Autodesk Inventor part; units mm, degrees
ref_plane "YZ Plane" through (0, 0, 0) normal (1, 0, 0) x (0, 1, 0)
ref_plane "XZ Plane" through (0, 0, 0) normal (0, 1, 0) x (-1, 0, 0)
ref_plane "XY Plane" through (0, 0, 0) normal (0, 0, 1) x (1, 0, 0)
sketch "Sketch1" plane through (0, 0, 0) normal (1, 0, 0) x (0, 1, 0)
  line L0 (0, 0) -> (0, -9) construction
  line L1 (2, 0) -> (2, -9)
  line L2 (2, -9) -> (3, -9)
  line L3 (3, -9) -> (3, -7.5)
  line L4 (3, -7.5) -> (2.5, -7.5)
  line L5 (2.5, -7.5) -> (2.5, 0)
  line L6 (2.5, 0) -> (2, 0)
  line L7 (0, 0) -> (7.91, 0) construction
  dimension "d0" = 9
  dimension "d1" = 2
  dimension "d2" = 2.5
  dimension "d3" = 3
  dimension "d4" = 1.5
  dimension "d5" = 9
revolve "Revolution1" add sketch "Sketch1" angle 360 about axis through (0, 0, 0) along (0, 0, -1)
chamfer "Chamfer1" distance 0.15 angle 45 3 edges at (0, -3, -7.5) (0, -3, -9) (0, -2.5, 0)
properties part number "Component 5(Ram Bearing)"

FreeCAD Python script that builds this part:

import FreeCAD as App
import Part
import Sketcher
Q = App.Units.Quantity


def edges_at(feature, points):
    """Names of the edges that pass closest to the given points."""
    edges = feature.Shape.Edges
    near = lambda p: min(range(len(edges)), key=lambda i: edges[i].distToShape(Part.Vertex(*p))[0])
    return sorted({f"Edge{near(p) + 1}" for p in points})


def add_polygon(sketch, points):
    """Adds a closed chain of lines whose ends are joined by coincident constraints."""
    first, n = sketch.GeometryCount, len(points)
    for a, b in zip(points, points[1:] + points[:1]):
        sketch.addGeometry(Part.LineSegment(App.Vector(*a, 0), App.Vector(*b, 0)), False)
    for i in range(n):
        sketch.addConstraint(Sketcher.Constraint("Coincident", first + i, 2, first + (i + 1) % n, 1))

doc = App.newDocument("Part")
body = doc.addObject("PartDesign::Body", "Body")

sketch1 = body.newObject("Sketcher::SketchObject", "Sketch")
sketch1.AttachmentSupport = (doc.getObject("YZ_Plane"), [""])
sketch1.MapMode = "FlatFace"
add_polygon(sketch1, [(2.5, 0), (2, 0), (2, -9), (3, -9), (3, -7.5), (2.5, -7.5)])
sketch1.addConstraint([
    Sketcher.Constraint("Horizontal", 0),
    Sketcher.Constraint("Vertical", 1),
    Sketcher.Constraint("Horizontal", 2),
    Sketcher.Constraint("Vertical", 3),
    Sketcher.Constraint("Horizontal", 4),
    Sketcher.Constraint("Vertical", 5),
    Sketcher.Constraint("PointOnObject", 0, 2, -1),
    Sketcher.Constraint("Equal", 0, 4),
    Sketcher.Constraint("DistanceY", 1, 2, 1, 1, Q("9 mm")),
    Sketcher.Constraint("DistanceY", 3, 1, 3, 2, Q("1.5 mm")),
    Sketcher.Constraint("DistanceX", -1, 1, 0, 2, Q("2 mm")),
    Sketcher.Constraint("DistanceX", -1, 1, 2, 2, Q("3 mm")),
])
revolution = body.newObject("PartDesign::Revolution", "Revolution")
revolution.Profile = sketch1
revolution.ReferenceAxis = (sketch1, ["V_Axis"])
revolution.Angle = 360
doc.recompute()

chamfer = body.newObject("PartDesign::Chamfer", "Chamfer")
chamfer.Base = (revolution, edges_at(revolution, [(0, -3, -7.5), (0, -3, -9), (0, -2.5, 0)]))
chamfer.Size = 0.15

doc.recompute()
